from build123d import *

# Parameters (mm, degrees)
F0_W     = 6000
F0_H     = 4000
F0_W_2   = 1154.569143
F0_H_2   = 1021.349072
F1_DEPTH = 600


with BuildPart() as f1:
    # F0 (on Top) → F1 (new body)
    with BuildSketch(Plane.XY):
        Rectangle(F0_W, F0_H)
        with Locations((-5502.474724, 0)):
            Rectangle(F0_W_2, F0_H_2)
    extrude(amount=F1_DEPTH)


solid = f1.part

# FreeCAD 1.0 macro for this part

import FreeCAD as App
import Part
import Sketcher

V = App.Vector


def add_polygon(sketch, points):
    """Adds a closed chain of lines whose ends are joined by coincident constraints."""
    first, n = sketch.GeometryCount, len(points)
    for a, b in zip(points, points[1:] + points[:1]):
        sketch.addGeometry(Part.LineSegment(App.Vector(*a, 0), App.Vector(*b, 0)), False)
    for i in range(n):
        sketch.addConstraint(Sketcher.Constraint("Coincident", first + i, 2, first + (i + 1) % n, 1))

doc = App.newDocument("Part")
params = doc.addObject("Spreadsheet::Sheet", "Params")
for row, (alias, value) in enumerate([
    ("sketch1_width", "6000 mm"),
    ("sketch1_height", "4000 mm"),
    ("pad1_length", "600 mm"),
], start=1):
    params.set(f"A{row}", alias)
    params.set(f"B{row}", "=" + value)
    params.setAlias(f"B{row}", alias)

body = doc.addObject("PartDesign::Body", "Body")
body.AllowCompound = True

# Sketch on XY plane
sketch1 = doc.addObject("Sketcher::SketchObject", "Sketch")
body.addObject(sketch1)
sketch1.AttachmentSupport = (doc.XY_Plane, [""])
sketch1.MapMode = "FlatFace"
add_polygon(sketch1, [(-3000, 2000), (-3000, -2000), (3000, -2000), (3000, 2000)])  # lines 0-3
add_polygon(sketch1, [(-6079.759296, 510.674536), (-6079.759296, -510.674536), (-4925.190153, -510.674536), (-4925.190153, 510.674536)])  # lines 4-7
sketch1.addConstraint([
    Sketcher.Constraint("Vertical", 0),
    Sketcher.Constraint("Horizontal", 1),
    Sketcher.Constraint("Vertical", 2),
    Sketcher.Constraint("Horizontal", 3),
    Sketcher.Constraint("Vertical", 4),
    Sketcher.Constraint("Horizontal", 5),
    Sketcher.Constraint("Vertical", 6),
    Sketcher.Constraint("Horizontal", 7),
    Sketcher.Constraint("Symmetric", 0, 2, 2, 2, -1, 1),
    Sketcher.Constraint("DistanceX", 1, 1, 1, 2, 6000.0),
    Sketcher.Constraint("DistanceY", 0, 2, 0, 1, 4000.0),
    Sketcher.Constraint("DistanceY", 4, 2, 4, 1, 1021.349072),
    Sketcher.Constraint("DistanceX", 5, 1, 5, 2, 1154.569143),
    Sketcher.Constraint("DistanceX", 4, 2, -1, 1, 6079.759296),
    Sketcher.Constraint("DistanceY", 4, 2, -1, 1, 510.674536),
])
sketch1.setExpression("Constraints[17]", "Params.sketch1_width")
sketch1.setExpression("Constraints[18]", "Params.sketch1_height")
pad1 = doc.addObject("PartDesign::Pad", "Pad")
body.addObject(pad1)
pad1.Profile = sketch1
pad1.setExpression("Length", "Params.pad1_length")

doc.recompute()
